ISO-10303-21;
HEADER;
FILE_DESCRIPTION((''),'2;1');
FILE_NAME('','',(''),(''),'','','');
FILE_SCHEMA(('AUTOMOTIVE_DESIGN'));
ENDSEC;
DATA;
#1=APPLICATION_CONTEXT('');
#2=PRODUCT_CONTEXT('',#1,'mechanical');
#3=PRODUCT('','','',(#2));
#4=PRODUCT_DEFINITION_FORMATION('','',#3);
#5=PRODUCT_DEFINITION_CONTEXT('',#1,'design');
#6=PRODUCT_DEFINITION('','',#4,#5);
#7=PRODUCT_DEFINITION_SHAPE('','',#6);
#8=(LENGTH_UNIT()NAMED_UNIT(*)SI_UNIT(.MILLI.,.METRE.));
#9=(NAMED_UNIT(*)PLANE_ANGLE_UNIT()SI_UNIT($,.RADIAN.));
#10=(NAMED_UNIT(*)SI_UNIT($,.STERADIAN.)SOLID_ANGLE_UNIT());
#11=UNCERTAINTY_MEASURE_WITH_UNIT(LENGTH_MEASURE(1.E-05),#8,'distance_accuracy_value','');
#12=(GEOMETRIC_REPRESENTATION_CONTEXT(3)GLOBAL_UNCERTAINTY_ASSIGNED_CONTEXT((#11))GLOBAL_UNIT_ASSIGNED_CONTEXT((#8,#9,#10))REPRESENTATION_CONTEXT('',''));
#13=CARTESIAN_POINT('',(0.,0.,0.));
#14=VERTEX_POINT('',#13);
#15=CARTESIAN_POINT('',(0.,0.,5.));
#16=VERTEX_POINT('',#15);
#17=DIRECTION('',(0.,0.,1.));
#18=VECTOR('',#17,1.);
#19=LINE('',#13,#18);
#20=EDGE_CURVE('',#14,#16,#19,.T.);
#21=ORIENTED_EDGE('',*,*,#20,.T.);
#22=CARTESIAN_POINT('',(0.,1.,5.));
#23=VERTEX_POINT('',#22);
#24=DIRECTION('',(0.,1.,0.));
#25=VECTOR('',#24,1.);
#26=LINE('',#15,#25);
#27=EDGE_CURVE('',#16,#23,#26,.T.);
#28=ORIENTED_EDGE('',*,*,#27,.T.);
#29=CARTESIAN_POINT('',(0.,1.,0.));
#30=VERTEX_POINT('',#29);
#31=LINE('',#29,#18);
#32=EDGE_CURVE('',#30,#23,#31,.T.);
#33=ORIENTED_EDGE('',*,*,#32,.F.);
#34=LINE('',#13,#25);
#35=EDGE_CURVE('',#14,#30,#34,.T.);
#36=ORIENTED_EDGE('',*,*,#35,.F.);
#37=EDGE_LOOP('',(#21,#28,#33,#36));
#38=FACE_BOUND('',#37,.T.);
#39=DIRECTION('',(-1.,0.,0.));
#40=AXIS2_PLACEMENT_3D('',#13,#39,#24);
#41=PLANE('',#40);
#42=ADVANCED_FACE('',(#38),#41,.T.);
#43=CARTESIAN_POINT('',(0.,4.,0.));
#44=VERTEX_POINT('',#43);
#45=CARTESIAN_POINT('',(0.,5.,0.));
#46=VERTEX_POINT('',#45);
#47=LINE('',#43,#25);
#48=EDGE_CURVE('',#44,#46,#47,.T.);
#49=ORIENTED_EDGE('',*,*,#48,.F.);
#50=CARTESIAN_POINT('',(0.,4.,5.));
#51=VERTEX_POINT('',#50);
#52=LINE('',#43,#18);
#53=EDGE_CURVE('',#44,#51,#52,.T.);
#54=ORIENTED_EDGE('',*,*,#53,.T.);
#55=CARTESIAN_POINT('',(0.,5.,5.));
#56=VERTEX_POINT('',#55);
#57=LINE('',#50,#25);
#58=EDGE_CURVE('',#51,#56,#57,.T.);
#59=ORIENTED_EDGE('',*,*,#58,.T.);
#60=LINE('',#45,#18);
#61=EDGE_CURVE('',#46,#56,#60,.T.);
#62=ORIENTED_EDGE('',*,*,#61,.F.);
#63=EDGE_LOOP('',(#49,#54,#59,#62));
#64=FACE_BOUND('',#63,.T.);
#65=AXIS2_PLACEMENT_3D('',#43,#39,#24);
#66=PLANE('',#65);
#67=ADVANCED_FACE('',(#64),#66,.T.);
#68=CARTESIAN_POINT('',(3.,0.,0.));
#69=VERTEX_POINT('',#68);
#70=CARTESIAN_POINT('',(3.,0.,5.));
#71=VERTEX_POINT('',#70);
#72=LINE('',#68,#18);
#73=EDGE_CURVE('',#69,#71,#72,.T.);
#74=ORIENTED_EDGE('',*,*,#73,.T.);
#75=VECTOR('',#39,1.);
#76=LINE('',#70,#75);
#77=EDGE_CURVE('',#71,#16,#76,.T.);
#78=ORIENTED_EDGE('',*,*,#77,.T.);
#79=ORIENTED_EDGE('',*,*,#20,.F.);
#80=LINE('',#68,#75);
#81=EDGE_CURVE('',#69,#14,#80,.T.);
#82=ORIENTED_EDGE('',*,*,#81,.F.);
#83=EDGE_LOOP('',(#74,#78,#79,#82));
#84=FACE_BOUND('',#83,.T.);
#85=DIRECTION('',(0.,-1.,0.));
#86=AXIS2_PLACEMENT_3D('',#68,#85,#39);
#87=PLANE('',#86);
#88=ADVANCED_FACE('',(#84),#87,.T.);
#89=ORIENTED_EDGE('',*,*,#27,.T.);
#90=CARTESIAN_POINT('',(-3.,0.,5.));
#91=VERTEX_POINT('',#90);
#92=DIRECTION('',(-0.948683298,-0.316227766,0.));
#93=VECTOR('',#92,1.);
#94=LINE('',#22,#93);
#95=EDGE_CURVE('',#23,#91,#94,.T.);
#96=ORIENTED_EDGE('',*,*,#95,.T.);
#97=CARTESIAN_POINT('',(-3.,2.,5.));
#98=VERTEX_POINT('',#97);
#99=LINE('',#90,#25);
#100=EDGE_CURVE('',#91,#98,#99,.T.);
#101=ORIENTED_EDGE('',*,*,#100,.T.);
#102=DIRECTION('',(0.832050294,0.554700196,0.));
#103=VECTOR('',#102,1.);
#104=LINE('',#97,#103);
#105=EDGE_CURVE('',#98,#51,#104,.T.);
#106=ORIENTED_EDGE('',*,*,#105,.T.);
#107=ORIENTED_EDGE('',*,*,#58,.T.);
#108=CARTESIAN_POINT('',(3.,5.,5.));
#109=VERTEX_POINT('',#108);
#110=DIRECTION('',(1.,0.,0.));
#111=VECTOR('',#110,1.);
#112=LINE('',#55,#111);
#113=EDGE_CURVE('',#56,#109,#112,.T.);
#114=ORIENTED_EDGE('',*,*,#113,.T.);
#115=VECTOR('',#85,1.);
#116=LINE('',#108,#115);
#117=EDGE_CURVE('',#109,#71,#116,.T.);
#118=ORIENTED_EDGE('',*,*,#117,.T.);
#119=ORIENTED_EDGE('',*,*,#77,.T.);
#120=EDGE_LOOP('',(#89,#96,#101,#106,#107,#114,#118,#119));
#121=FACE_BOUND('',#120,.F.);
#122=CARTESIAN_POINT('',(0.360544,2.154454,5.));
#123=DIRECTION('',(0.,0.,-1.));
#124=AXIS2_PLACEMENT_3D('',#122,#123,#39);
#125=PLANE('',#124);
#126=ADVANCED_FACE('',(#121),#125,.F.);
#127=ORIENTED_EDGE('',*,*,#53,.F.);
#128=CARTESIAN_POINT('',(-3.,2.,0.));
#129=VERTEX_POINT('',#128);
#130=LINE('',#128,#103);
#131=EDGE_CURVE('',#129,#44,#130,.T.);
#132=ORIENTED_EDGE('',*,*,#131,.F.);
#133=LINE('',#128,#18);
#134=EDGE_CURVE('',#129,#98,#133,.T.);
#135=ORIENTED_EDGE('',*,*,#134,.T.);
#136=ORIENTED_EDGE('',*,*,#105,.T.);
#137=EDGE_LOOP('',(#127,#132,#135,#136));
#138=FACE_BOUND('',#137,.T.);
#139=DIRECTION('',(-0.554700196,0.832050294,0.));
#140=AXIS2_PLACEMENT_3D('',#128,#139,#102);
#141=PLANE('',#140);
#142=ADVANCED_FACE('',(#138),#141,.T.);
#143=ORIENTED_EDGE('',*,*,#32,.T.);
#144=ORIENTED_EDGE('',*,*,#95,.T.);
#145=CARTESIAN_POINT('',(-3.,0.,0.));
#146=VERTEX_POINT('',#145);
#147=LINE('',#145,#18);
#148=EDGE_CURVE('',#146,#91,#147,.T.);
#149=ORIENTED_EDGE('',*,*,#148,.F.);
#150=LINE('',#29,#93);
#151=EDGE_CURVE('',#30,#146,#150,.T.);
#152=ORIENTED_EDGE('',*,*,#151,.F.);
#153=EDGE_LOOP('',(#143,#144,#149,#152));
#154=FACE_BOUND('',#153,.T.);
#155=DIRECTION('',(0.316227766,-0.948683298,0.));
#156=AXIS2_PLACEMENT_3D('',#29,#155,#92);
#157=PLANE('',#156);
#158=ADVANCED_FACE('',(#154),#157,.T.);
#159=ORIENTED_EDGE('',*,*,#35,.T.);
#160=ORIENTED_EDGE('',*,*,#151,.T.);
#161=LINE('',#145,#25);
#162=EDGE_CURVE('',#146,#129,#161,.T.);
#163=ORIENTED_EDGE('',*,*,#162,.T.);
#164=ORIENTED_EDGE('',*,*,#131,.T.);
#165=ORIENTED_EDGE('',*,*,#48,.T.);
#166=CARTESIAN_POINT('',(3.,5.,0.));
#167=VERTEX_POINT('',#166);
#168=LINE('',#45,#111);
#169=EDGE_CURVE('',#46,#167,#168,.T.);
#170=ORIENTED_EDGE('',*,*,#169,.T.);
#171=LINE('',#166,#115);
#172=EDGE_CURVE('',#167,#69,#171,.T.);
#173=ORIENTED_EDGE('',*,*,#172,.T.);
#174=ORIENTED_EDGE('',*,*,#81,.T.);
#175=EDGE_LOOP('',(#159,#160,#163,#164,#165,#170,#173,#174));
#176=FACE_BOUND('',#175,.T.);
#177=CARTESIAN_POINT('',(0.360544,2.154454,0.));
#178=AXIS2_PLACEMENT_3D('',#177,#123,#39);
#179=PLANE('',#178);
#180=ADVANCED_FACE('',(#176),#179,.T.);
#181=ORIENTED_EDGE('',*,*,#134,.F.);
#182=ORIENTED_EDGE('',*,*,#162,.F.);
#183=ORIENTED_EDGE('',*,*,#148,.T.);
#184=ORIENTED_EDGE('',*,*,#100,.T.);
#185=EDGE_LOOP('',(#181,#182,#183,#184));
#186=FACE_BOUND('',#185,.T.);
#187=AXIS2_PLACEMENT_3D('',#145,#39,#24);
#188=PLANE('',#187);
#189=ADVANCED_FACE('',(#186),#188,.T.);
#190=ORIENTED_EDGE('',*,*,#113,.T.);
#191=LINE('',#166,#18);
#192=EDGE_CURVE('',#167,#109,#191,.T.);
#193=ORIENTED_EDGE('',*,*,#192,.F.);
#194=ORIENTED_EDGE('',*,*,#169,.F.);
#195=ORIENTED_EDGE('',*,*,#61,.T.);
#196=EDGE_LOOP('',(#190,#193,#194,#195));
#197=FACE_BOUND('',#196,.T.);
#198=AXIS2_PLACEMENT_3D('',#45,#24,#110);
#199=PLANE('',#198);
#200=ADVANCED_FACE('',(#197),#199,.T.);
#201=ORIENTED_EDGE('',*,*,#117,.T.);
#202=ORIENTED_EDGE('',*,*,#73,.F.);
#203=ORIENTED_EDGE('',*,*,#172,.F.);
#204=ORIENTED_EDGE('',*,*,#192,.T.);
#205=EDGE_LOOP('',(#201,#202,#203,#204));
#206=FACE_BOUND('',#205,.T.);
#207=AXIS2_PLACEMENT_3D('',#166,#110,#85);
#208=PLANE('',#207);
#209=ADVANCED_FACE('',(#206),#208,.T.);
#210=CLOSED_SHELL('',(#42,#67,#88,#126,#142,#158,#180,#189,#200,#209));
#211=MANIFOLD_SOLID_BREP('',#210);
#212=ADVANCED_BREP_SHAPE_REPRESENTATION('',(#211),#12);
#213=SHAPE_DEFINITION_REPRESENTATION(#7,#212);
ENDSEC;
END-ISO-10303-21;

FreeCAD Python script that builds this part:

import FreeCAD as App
import Part
import Sketcher

V = App.Vector
Q = App.Units.Quantity


def add_polygon(sketch, points):
    """Adds a closed chain of lines whose ends are joined by coincident constraints."""
    first, n = sketch.GeometryCount, len(points)
    for a, b in zip(points, points[1:] + points[:1]):
        sketch.addGeometry(Part.LineSegment(App.Vector(*a, 0), App.Vector(*b, 0)), False)
    for i in range(n):
        sketch.addConstraint(Sketcher.Constraint("Coincident", first + i, 2, first + (i + 1) % n, 1))

doc = App.newDocument("Part")
body = doc.addObject("PartDesign::Body", "Body")

# Sketch on XY plane
sketch1 = body.newObject("Sketcher::SketchObject", "Sketch")
sketch1.AttachmentSupport = (doc.getObject("XY_Plane"), [""])
sketch1.MapMode = "FlatFace"
add_polygon(sketch1, [(0, 1), (0, 0), (3, 0), (3, 5), (0, 5), (0, 4), (-3, 2), (-3, 0)])  # lines 0-7
sketch1.addConstraint([
    Sketcher.Constraint("Vertical", 0),
    Sketcher.Constraint("Horizontal", 1),
    Sketcher.Constraint("Vertical", 2),
    Sketcher.Constraint("Horizontal", 3),
    Sketcher.Constraint("Vertical", 4),
    Sketcher.Constraint("Vertical", 6),
    Sketcher.Constraint("Coincident", 0, 2, -1, 1),
    Sketcher.Constraint("Symmetric", 1, 2, 6, 2, -1, 1),
    Sketcher.Constraint("PointOnObject", 3, 2, -2),
    Sketcher.Constraint("Equal", 0, 4),
    Sketcher.Constraint("DistanceX", 1, 1, 1, 2, Q("3 mm")),
    Sketcher.Constraint("DistanceY", 0, 2, 0, 1, Q("1 mm")),
    Sketcher.Constraint("DistanceY", 2, 1, 2, 2, Q("5 mm")),
    Sketcher.Constraint("DistanceY", 6, 2, 6, 1, Q("2 mm")),
])
pad1 = body.newObject("PartDesign::Pad", "Pad")
pad1.Profile = sketch1
pad1.Length = 5

doc.recompute()
